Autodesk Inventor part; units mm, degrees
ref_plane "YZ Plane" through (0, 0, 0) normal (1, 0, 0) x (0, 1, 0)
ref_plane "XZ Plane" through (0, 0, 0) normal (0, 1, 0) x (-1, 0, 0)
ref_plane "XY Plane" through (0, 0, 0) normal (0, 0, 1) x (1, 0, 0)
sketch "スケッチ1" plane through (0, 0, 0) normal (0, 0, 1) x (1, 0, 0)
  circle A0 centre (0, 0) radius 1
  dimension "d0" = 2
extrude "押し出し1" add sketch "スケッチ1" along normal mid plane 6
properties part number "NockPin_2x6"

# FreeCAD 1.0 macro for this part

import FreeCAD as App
import Part
import Sketcher

doc = App.newDocument("Part")
params = doc.addObject("Spreadsheet::Sheet", "Params")
for row, (alias, value) in enumerate([
    ("sketch1_diameter", "2 mm"),
    ("pad1_length", "6 mm"),
], start=1):
    params.set(f"A{row}", alias)
    params.set(f"B{row}", "=" + value)
    params.setAlias(f"B{row}", alias)

body = doc.addObject("PartDesign::Body", "Body")

sketch1 = doc.addObject("Sketcher::SketchObject", "Sketch")
body.addObject(sketch1)
sketch1.AttachmentSupport = (doc.XY_Plane, [""])
sketch1.MapMode = "FlatFace"
sketch1.addGeometry(Part.Circle(App.Vector(0, 0, 0), App.Vector(0, 0, 1), 1), False)
sketch1.addConstraint([
    Sketcher.Constraint("Coincident", 0, 3, -1, 1),
    Sketcher.Constraint("Diameter", 0, 2.0),
])
sketch1.setExpression("Constraints[1]", "Params.sketch1_diameter")
pad1 = doc.addObject("PartDesign::Pad", "Pad")
body.addObject(pad1)
pad1.Profile = sketch1
pad1.setExpression("Length", "Params.pad1_length")
pad1.Midplane = True

doc.recompute()
